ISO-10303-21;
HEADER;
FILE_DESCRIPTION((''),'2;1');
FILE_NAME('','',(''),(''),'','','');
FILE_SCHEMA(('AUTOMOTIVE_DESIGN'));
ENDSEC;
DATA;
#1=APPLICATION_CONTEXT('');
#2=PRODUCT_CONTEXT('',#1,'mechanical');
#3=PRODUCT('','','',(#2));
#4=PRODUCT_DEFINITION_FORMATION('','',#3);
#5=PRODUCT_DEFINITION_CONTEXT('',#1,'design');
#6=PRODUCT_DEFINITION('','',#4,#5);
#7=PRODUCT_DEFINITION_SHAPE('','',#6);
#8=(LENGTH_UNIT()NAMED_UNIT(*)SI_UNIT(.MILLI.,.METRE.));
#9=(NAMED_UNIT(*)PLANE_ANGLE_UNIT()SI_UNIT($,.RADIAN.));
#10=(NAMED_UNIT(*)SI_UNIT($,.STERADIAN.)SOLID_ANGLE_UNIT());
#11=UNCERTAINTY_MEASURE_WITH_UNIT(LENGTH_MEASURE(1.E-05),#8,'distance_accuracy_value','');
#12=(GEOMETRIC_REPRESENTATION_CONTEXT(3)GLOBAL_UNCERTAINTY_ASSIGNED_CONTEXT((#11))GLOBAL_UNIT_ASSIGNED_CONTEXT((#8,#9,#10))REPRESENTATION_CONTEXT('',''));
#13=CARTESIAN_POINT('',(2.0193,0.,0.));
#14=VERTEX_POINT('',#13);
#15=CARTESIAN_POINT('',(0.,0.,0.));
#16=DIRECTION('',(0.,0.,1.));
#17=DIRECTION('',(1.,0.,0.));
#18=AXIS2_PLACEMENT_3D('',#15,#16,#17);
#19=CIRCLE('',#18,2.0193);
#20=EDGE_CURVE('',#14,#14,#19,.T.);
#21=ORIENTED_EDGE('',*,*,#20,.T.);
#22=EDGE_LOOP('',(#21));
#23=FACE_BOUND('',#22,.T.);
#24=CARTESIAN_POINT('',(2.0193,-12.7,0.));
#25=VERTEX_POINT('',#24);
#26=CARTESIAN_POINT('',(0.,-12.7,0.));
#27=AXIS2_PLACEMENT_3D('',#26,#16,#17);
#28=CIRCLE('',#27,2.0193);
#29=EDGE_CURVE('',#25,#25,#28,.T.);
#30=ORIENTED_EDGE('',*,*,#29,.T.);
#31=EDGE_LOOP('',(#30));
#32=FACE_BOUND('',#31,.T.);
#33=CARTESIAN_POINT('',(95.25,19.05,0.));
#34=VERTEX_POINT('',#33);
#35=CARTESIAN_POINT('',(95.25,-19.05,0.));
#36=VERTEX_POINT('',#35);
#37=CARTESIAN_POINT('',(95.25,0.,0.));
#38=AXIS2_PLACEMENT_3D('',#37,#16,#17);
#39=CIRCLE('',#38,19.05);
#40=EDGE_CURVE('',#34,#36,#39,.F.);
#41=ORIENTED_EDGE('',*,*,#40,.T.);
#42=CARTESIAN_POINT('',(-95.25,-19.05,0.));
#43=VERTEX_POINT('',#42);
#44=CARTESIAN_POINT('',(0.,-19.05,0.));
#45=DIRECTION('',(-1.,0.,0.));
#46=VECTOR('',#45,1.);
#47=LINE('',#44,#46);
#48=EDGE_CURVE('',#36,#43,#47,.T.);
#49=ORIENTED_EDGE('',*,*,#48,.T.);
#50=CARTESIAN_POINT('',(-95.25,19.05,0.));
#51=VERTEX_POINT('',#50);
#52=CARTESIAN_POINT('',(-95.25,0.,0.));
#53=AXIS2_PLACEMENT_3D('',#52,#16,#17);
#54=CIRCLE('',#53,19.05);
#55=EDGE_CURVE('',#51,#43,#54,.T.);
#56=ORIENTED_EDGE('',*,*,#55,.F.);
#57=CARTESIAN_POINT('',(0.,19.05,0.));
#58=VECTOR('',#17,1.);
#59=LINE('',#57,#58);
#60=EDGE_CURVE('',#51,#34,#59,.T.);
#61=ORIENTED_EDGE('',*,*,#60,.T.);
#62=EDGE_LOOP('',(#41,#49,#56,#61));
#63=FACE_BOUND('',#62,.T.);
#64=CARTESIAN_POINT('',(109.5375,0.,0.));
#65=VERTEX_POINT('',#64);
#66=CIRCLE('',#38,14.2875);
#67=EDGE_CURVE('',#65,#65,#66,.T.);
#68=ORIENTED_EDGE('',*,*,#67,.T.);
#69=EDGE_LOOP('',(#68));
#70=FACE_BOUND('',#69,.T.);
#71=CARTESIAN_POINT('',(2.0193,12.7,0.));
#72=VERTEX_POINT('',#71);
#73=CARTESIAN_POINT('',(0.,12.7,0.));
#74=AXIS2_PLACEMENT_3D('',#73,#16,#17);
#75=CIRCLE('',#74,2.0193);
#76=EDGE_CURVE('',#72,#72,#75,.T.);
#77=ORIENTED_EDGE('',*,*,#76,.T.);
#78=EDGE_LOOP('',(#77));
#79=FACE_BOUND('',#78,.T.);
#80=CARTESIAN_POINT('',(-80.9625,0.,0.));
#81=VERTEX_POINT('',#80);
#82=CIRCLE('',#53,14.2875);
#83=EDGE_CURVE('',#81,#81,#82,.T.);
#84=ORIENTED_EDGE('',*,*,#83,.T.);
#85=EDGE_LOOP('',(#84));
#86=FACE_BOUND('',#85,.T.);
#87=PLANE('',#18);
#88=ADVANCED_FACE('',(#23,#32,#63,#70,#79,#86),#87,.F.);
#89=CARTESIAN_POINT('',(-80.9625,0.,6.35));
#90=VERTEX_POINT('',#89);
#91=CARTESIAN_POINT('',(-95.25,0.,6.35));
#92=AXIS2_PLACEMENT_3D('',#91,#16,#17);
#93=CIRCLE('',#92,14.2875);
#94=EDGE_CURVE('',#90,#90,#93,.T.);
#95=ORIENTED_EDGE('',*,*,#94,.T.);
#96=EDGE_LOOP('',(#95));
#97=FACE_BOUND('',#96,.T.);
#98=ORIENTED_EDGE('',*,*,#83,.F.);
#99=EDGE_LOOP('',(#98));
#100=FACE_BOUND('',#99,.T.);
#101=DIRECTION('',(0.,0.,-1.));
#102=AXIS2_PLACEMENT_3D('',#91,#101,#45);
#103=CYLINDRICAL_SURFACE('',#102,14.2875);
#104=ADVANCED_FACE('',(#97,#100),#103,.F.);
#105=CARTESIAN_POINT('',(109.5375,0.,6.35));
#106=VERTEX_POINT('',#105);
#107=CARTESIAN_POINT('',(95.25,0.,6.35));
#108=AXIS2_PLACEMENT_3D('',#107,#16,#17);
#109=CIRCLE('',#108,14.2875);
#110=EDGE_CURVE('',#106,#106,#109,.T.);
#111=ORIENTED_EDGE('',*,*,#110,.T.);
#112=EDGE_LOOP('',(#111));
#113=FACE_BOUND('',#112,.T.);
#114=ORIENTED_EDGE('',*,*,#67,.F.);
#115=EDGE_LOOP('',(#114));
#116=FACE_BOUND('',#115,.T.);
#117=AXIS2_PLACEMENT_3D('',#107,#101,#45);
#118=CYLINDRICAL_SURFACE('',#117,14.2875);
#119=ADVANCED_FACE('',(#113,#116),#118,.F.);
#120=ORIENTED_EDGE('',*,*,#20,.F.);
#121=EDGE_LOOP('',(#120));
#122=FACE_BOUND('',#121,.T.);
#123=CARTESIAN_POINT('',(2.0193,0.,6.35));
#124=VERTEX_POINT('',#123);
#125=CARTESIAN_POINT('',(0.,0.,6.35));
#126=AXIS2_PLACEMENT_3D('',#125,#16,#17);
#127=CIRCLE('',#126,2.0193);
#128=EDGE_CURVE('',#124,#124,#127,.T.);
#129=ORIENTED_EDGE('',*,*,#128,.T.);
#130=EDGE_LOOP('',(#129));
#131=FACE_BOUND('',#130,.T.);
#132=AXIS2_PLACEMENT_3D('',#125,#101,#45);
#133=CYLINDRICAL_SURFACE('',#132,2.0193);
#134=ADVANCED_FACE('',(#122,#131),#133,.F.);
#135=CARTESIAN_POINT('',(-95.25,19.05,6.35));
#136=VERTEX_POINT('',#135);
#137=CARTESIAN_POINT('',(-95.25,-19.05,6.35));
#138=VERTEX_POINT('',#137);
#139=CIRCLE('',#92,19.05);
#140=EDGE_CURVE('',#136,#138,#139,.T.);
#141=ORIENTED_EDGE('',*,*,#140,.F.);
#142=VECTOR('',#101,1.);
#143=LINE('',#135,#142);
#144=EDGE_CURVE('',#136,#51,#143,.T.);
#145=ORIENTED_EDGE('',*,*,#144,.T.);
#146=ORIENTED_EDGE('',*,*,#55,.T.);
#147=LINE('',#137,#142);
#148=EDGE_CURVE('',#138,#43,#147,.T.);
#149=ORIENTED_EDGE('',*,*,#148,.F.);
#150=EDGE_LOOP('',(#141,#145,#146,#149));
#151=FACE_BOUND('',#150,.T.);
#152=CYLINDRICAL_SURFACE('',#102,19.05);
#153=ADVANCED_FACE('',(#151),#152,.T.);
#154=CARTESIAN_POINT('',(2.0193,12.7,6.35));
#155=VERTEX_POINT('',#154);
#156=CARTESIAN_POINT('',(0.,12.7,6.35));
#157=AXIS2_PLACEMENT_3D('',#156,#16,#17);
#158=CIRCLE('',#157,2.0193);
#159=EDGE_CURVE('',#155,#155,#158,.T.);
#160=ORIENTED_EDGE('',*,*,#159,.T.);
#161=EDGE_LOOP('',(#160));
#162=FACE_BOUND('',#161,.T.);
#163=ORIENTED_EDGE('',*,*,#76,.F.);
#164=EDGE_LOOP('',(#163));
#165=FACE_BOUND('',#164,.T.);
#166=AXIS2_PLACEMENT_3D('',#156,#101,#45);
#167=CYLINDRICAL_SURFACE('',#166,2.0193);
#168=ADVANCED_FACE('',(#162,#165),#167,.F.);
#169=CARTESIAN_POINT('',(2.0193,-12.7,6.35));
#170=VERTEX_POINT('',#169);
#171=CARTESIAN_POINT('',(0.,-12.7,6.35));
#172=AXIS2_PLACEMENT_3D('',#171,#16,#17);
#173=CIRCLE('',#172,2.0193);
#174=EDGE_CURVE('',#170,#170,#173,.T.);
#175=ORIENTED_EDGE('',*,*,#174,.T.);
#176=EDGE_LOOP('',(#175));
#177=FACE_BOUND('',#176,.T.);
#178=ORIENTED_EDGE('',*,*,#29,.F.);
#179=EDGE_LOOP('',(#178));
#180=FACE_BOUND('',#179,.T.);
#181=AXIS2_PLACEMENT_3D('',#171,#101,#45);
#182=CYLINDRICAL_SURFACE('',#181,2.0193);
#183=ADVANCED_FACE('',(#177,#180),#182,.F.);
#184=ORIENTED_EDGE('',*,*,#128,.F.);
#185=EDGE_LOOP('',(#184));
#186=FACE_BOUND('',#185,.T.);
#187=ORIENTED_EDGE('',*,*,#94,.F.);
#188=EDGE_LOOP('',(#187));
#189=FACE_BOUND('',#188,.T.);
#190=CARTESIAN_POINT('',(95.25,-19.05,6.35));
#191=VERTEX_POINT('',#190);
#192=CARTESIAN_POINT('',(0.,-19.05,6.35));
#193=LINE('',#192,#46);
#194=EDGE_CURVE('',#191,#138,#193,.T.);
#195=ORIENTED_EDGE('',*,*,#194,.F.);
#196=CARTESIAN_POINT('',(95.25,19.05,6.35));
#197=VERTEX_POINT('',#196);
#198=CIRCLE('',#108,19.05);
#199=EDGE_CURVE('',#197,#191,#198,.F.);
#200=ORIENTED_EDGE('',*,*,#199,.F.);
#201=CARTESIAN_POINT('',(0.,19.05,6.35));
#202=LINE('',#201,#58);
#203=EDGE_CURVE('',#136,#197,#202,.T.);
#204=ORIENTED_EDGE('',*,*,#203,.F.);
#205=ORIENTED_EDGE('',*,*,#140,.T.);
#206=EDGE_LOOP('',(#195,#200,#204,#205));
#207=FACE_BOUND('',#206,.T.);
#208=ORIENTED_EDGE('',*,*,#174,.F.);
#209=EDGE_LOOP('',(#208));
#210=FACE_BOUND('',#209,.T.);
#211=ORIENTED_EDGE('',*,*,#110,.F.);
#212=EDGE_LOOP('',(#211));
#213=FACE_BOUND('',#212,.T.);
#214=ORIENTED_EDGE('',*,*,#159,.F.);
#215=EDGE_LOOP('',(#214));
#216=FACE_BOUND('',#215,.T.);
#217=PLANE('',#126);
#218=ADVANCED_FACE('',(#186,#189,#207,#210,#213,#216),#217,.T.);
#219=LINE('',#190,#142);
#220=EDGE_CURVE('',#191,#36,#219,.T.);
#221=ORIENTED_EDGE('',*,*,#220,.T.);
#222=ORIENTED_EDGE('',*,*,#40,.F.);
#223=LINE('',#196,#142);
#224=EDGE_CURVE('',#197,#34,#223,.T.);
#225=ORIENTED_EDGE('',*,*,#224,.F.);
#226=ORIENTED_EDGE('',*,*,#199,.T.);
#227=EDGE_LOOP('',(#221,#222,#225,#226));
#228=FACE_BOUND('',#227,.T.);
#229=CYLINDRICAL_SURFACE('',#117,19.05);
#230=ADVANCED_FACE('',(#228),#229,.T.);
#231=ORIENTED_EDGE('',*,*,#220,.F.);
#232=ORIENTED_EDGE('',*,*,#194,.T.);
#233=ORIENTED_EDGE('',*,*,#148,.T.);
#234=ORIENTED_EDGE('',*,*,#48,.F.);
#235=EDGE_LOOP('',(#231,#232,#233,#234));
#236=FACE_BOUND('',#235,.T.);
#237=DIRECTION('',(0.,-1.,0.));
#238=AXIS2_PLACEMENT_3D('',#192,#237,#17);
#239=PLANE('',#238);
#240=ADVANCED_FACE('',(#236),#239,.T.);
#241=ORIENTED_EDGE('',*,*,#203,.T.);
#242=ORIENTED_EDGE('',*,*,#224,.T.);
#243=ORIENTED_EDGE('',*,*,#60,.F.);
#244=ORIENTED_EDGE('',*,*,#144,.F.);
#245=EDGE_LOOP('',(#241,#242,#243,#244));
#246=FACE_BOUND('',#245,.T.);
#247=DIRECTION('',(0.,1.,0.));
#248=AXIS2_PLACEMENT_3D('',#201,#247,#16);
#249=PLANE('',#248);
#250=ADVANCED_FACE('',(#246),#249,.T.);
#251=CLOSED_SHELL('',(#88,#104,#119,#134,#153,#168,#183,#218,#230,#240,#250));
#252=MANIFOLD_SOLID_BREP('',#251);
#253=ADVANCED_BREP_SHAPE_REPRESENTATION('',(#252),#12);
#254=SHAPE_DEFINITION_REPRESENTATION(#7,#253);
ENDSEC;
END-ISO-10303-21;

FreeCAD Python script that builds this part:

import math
import FreeCAD as App
import Part
import Sketcher
from FreeCAD import Vector
Q = App.Units.Quantity

doc = App.newDocument("Part")
params = doc.addObject("Spreadsheet::Sheet", "Params")
for row, (alias, value) in enumerate([
    ("sketch1_radius", "0.75 in"),
    ("sketch1_diameter", "0.159 in"),
    ("sketch1_diameter2", "1.125 in"),
    ("sketch1_width", "7.5 in"),
    ("pad1_length", "0.25 in"),
], start=1):
    params.set(f"A{row}", alias)
    params.set(f"B{row}", "=" + value)
    params.setAlias(f"B{row}", alias)

body = doc.addObject("PartDesign::Body", "Body")

sketch1 = body.newObject("Sketcher::SketchObject", "Sketch")
sketch1.AttachmentSupport = (doc.getObject("XY_Plane"), [""])
sketch1.MapMode = "FlatFace"
sketch1.addGeometry(Part.LineSegment(Vector(95.2, 19.1, 0), Vector(-95.2, 19.1, 0)), False)
sketch1.addGeometry(Part.ArcOfCircle(Part.Circle(Vector(-95.2, 0, 0), Vector(0, 0, 1), 19.1), math.radians(90), math.radians(270)), False)
sketch1.addGeometry(Part.LineSegment(Vector(-95.2, -19.1, 0), Vector(95.2, -19.1, 0)), False)
sketch1.addGeometry(Part.ArcOfCircle(Part.Circle(Vector(95.2, 0, 0), Vector(0, 0, 1), 19.1), math.radians(-90), math.radians(90)), False)
sketch1.addGeometry(Part.Circle(Vector(0, -12.7, 0), Vector(0, 0, 1), 2), False)
sketch1.addGeometry(Part.Circle(Vector(95.2, 0, 0), Vector(0, 0, 1), 14.3), False)
sketch1.addGeometry(Part.Circle(Vector(0, 0, 0), Vector(0, 0, 1), 2), False)
sketch1.addGeometry(Part.Circle(Vector(-95.2, 0, 0), Vector(0, 0, 1), 14.3), False)
sketch1.addGeometry(Part.Circle(Vector(0, 12.7, 0), Vector(0, 0, 1), 2), False)
sketch1.addConstraint(Sketcher.Constraint("Tangent", 0, 2, 1, 1))
sketch1.addConstraint(Sketcher.Constraint("Tangent", 1, 2, 2, 1))
sketch1.addConstraint(Sketcher.Constraint("Tangent", 2, 2, 3, 1))
sketch1.addConstraint(Sketcher.Constraint("Tangent", 3, 2, 0, 1))
sketch1.addConstraint(Sketcher.Constraint("Horizontal", 0))
sketch1.addConstraint(Sketcher.Constraint("Horizontal", 2))
sketch1.addConstraint(Sketcher.Constraint("Coincident", 6, 3, -1, 1))
sketch1.addConstraint(Sketcher.Constraint("Coincident", 5, 3, 3, 3))
sketch1.addConstraint(Sketcher.Constraint("Coincident", 7, 3, 1, 3))
sketch1.addConstraint(Sketcher.Constraint("Equal", 4, 6))
sketch1.addConstraint(Sketcher.Constraint("Equal", 5, 7))
sketch1.addConstraint(Sketcher.Constraint("Equal", 6, 8))
sketch1.addConstraint(Sketcher.Constraint("Symmetric", 1, 3, 3, 3, -1, 1))
sketch1.addConstraint(Sketcher.Constraint("Symmetric", 4, 3, 8, 3, -1, 1))
sketch1.addConstraint(Sketcher.Constraint("PointOnObject", 4, 3, -2))
sketch1.addConstraint(Sketcher.Constraint("Radius", 1, Q("0.75 in")))
sketch1.addConstraint(Sketcher.Constraint("Diameter", 4, Q("0.159 in")))
sketch1.addConstraint(Sketcher.Constraint("Diameter", 5, Q("1.125 in")))
sketch1.addConstraint(Sketcher.Constraint("DistanceX", 0, 2, 0, 1, Q("7.5 in")))
sketch1.addConstraint(Sketcher.Constraint("DistanceY", 4, 3, 8, 3, Q("1 in")))
sketch1.setExpression("Constraints[15]", "Params.sketch1_radius")
sketch1.setExpression("Constraints[16]", "Params.sketch1_diameter")
sketch1.setExpression("Constraints[17]", "Params.sketch1_diameter2")
sketch1.setExpression("Constraints[18]", "Params.sketch1_width")
pad1 = body.newObject("PartDesign::Pad", "Pad")
pad1.Profile = sketch1
pad1.setExpression("Length", "Params.pad1_length")

doc.recompute()
